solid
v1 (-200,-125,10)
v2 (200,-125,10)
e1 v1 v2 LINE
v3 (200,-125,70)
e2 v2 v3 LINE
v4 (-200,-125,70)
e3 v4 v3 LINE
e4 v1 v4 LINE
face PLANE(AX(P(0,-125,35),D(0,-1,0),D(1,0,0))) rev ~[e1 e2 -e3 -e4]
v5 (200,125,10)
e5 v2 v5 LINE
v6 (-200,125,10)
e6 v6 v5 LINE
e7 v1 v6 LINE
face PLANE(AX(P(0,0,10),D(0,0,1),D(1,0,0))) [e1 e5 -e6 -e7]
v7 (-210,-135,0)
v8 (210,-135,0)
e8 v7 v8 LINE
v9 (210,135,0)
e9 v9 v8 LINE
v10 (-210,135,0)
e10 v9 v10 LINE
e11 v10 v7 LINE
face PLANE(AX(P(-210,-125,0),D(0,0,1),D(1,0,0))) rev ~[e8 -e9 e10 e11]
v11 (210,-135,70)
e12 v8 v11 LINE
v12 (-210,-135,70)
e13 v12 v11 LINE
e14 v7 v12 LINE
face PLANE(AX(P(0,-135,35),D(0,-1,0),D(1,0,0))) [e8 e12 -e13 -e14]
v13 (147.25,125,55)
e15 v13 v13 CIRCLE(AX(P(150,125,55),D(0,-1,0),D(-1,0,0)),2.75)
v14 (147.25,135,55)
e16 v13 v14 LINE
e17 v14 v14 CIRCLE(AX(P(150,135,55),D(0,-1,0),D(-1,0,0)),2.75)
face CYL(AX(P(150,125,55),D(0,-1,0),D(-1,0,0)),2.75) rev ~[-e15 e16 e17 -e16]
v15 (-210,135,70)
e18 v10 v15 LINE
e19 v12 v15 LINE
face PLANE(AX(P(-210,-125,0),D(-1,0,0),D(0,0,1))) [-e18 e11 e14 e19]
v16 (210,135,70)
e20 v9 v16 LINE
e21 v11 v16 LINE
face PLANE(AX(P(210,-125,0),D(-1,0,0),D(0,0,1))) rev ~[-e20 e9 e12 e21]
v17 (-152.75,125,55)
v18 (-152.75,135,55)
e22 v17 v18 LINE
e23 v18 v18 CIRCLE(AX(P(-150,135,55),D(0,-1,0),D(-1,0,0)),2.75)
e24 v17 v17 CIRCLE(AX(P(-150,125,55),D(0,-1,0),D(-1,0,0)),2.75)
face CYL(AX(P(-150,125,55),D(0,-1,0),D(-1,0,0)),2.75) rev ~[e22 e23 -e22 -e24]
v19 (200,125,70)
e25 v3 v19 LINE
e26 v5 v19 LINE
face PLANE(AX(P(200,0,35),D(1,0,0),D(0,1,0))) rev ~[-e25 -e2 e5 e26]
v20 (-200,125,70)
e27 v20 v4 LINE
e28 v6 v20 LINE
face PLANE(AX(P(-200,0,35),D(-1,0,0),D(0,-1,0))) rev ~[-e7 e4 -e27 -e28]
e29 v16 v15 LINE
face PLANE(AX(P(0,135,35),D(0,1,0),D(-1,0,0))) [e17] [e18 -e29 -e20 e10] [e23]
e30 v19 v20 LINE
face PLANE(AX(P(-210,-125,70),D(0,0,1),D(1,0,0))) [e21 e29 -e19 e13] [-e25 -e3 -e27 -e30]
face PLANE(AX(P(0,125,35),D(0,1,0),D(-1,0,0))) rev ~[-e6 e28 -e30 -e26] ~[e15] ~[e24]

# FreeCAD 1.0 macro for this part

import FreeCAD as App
import Part
import Sketcher
from FreeCAD import Vector


def add_polygon(sketch, points):
    """Adds a closed chain of lines whose ends are joined by coincident constraints."""
    first, n = sketch.GeometryCount, len(points)
    for a, b in zip(points, points[1:] + points[:1]):
        sketch.addGeometry(Part.LineSegment(App.Vector(*a, 0), App.Vector(*b, 0)), False)
    for i in range(n):
        sketch.addConstraint(Sketcher.Constraint("Coincident", first + i, 2, first + (i + 1) % n, 1))

doc = App.newDocument("Part")
params = doc.addObject("Spreadsheet::Sheet", "Params")
for row, (alias, value) in enumerate([
    ("sketch1_width", "400 mm"),
    ("sketch1_height", "250 mm"),
    ("pad1_length", "10 mm"),
    ("sketch2_width", "250 mm"),
    ("sketch2_height", "70 mm"),
    ("pad2_length", "10 mm"),
    ("sketch3_width", "420 mm"),
    ("sketch3_height", "70 mm"),
    ("pad3_length", "10 mm"),
    ("sketch4_width", "250 mm"),
    ("sketch4_height", "70 mm"),
    ("pad4_length", "10 mm"),
    ("sketch5_width", "420 mm"),
    ("sketch5_height", "70 mm"),
    ("pad5_length", "10 mm"),
    ("sketch6_diameter", "5.5 mm"),
    ("sketch7_diameter", "5.5 mm"),
], start=1):
    params.set(f"A{row}", alias)
    params.set(f"B{row}", "=" + value)
    params.setAlias(f"B{row}", alias)

body = doc.addObject("PartDesign::Body", "Body")

# Sketch on XY plane
sketch1 = body.newObject("Sketcher::SketchObject", "Sketch")
sketch1.AttachmentSupport = (doc.getObject("XY_Plane"), [""])
sketch1.MapMode = "FlatFace"
add_polygon(sketch1, [(-200, 125), (-200, -125), (200, -125), (200, 125)])  # lines 0-3
sketch1.addConstraint(Sketcher.Constraint("Vertical", 0))
sketch1.addConstraint(Sketcher.Constraint("Horizontal", 1))
sketch1.addConstraint(Sketcher.Constraint("Vertical", 2))
sketch1.addConstraint(Sketcher.Constraint("Horizontal", 3))
sketch1.addConstraint(Sketcher.Constraint("Symmetric", 0, 2, 2, 2, -1, 1))
sketch1.addConstraint(Sketcher.Constraint("DistanceX", 1, 1, 1, 2, 400.0))
sketch1.addConstraint(Sketcher.Constraint("DistanceY", 0, 2, 0, 1, 250.0))
sketch1.setExpression("Constraints[9]", "Params.sketch1_width")
sketch1.setExpression("Constraints[10]", "Params.sketch1_height")
pad1 = body.newObject("PartDesign::Pad", "Pad")
pad1.Profile = sketch1
pad1.setExpression("Length", "Params.pad1_length")

# Sketch on YZ plane
sketch2 = body.newObject("Sketcher::SketchObject", "Sketch001")
sketch2.AttachmentSupport = (doc.getObject("YZ_Plane"), [""])
sketch2.MapMode = "FlatFace"
sketch2.AttachmentOffset = App.Placement(Vector(0, 0, 200), App.Rotation())
add_polygon(sketch2, [(-125, 70), (-125, 0), (125, 0), (125, 70)])  # lines 0-3
sketch2.addConstraint(Sketcher.Constraint("Vertical", 0))
sketch2.addConstraint(Sketcher.Constraint("Horizontal", 1))
sketch2.addConstraint(Sketcher.Constraint("Vertical", 2))
sketch2.addConstraint(Sketcher.Constraint("Horizontal", 3))
sketch2.addConstraint(Sketcher.Constraint("Symmetric", 0, 2, 1, 2, -1, 1))
sketch2.addConstraint(Sketcher.Constraint("DistanceX", 1, 1, 1, 2, 250.0))
sketch2.addConstraint(Sketcher.Constraint("DistanceY", 0, 2, 0, 1, 70.0))
sketch2.setExpression("Constraints[9]", "Params.sketch2_width")
sketch2.setExpression("Constraints[10]", "Params.sketch2_height")
pad2 = body.newObject("PartDesign::Pad", "Pad001")
pad2.Profile = sketch2
pad2.setExpression("Length", "Params.pad2_length")

# Sketch on XZ plane
sketch3 = body.newObject("Sketcher::SketchObject", "Sketch002")
sketch3.AttachmentSupport = (doc.getObject("XZ_Plane"), [""])
sketch3.MapMode = "FlatFace"
sketch3.AttachmentOffset = App.Placement(Vector(0, 0, -125), App.Rotation())
add_polygon(sketch3, [(210, 70), (210, 0), (-210, 0), (-210, 70)])  # lines 0-3
sketch3.addConstraint(Sketcher.Constraint("Vertical", 0))
sketch3.addConstraint(Sketcher.Constraint("Horizontal", 1))
sketch3.addConstraint(Sketcher.Constraint("Vertical", 2))
sketch3.addConstraint(Sketcher.Constraint("Horizontal", 3))
sketch3.addConstraint(Sketcher.Constraint("Symmetric", 0, 2, 1, 2, -1, 1))
sketch3.addConstraint(Sketcher.Constraint("DistanceX", 1, 2, 1, 1, 420.0))
sketch3.addConstraint(Sketcher.Constraint("DistanceY", 0, 2, 0, 1, 70.0))
sketch3.setExpression("Constraints[9]", "Params.sketch3_width")
sketch3.setExpression("Constraints[10]", "Params.sketch3_height")
pad3 = body.newObject("PartDesign::Pad", "Pad002")
pad3.Profile = sketch3
pad3.setExpression("Length", "Params.pad3_length")
pad3.Reversed = True

# Sketch on YZ plane
sketch4 = body.newObject("Sketcher::SketchObject", "Sketch003")
sketch4.AttachmentSupport = (doc.getObject("YZ_Plane"), [""])
sketch4.MapMode = "FlatFace"
sketch4.AttachmentOffset = App.Placement(Vector(0, 0, -200), App.Rotation())
add_polygon(sketch4, [(125, 70), (125, 0), (-125, 0), (-125, 70)])  # lines 0-3
sketch4.addConstraint(Sketcher.Constraint("Vertical", 0))
sketch4.addConstraint(Sketcher.Constraint("Horizontal", 1))
sketch4.addConstraint(Sketcher.Constraint("Vertical", 2))
sketch4.addConstraint(Sketcher.Constraint("Horizontal", 3))
sketch4.addConstraint(Sketcher.Constraint("Symmetric", 0, 2, 1, 2, -1, 1))
sketch4.addConstraint(Sketcher.Constraint("DistanceX", 1, 2, 1, 1, 250.0))
sketch4.addConstraint(Sketcher.Constraint("DistanceY", 0, 2, 0, 1, 70.0))
sketch4.setExpression("Constraints[9]", "Params.sketch4_width")
sketch4.setExpression("Constraints[10]", "Params.sketch4_height")
pad4 = body.newObject("PartDesign::Pad", "Pad003")
pad4.Profile = sketch4
pad4.setExpression("Length", "Params.pad4_length")
pad4.Reversed = True

# Sketch on XZ plane
sketch5 = body.newObject("Sketcher::SketchObject", "Sketch004")
sketch5.AttachmentSupport = (doc.getObject("XZ_Plane"), [""])
sketch5.MapMode = "FlatFace"
sketch5.AttachmentOffset = App.Placement(Vector(0, 0, 125), App.Rotation())
add_polygon(sketch5, [(-210, 70), (-210, 0), (210, 0), (210, 70)])  # lines 0-3
sketch5.addConstraint(Sketcher.Constraint("Vertical", 0))
sketch5.addConstraint(Sketcher.Constraint("Horizontal", 1))
sketch5.addConstraint(Sketcher.Constraint("Vertical", 2))
sketch5.addConstraint(Sketcher.Constraint("Horizontal", 3))
sketch5.addConstraint(Sketcher.Constraint("Symmetric", 0, 2, 1, 2, -1, 1))
sketch5.addConstraint(Sketcher.Constraint("DistanceX", 1, 1, 1, 2, 420.0))
sketch5.addConstraint(Sketcher.Constraint("DistanceY", 0, 2, 0, 1, 70.0))
sketch5.setExpression("Constraints[9]", "Params.sketch5_width")
sketch5.setExpression("Constraints[10]", "Params.sketch5_height")
pad5 = body.newObject("PartDesign::Pad", "Pad004")
pad5.Profile = sketch5
pad5.setExpression("Length", "Params.pad5_length")

# Sketch on XZ plane
sketch6 = body.newObject("Sketcher::SketchObject", "Sketch005")
sketch6.AttachmentSupport = (doc.getObject("XZ_Plane"), [""])
sketch6.MapMode = "FlatFace"
sketch6.AttachmentOffset = App.Placement(Vector(0, 0, -125), App.Rotation())
sketch6.addGeometry(Part.Circle(Vector(150, 55, 0), Vector(0, 0, 1), 2.8), False)
sketch6.addConstraint(Sketcher.Constraint("Diameter", 0, 5.5))
sketch6.addConstraint(Sketcher.Constraint("DistanceX", -1, 1, 0, 3, 150.0))
sketch6.addConstraint(Sketcher.Constraint("DistanceY", -1, 1, 0, 3, 55.0))
sketch6.setExpression("Constraints[0]", "Params.sketch6_diameter")
pocket1 = body.newObject("PartDesign::Pocket", "Pocket")
pocket1.Profile = sketch6
pocket1.Type = "ThroughAll"

# Sketch on XZ plane
sketch7 = body.newObject("Sketcher::SketchObject", "Sketch006")
sketch7.AttachmentSupport = (doc.getObject("XZ_Plane"), [""])
sketch7.MapMode = "FlatFace"
sketch7.AttachmentOffset = App.Placement(Vector(0, 0, -125), App.Rotation())
sketch7.addGeometry(Part.Circle(Vector(-150, 55, 0), Vector(0, 0, 1), 2.8), False)
sketch7.addConstraint(Sketcher.Constraint("Diameter", 0, 5.5))
sketch7.addConstraint(Sketcher.Constraint("DistanceX", 0, 3, -1, 1, 150.0))
sketch7.addConstraint(Sketcher.Constraint("DistanceY", -1, 1, 0, 3, 55.0))
sketch7.setExpression("Constraints[0]", "Params.sketch7_diameter")
pocket2 = body.newObject("PartDesign::Pocket", "Pocket001")
pocket2.Profile = sketch7
pocket2.Type = "ThroughAll"

doc.recompute()
